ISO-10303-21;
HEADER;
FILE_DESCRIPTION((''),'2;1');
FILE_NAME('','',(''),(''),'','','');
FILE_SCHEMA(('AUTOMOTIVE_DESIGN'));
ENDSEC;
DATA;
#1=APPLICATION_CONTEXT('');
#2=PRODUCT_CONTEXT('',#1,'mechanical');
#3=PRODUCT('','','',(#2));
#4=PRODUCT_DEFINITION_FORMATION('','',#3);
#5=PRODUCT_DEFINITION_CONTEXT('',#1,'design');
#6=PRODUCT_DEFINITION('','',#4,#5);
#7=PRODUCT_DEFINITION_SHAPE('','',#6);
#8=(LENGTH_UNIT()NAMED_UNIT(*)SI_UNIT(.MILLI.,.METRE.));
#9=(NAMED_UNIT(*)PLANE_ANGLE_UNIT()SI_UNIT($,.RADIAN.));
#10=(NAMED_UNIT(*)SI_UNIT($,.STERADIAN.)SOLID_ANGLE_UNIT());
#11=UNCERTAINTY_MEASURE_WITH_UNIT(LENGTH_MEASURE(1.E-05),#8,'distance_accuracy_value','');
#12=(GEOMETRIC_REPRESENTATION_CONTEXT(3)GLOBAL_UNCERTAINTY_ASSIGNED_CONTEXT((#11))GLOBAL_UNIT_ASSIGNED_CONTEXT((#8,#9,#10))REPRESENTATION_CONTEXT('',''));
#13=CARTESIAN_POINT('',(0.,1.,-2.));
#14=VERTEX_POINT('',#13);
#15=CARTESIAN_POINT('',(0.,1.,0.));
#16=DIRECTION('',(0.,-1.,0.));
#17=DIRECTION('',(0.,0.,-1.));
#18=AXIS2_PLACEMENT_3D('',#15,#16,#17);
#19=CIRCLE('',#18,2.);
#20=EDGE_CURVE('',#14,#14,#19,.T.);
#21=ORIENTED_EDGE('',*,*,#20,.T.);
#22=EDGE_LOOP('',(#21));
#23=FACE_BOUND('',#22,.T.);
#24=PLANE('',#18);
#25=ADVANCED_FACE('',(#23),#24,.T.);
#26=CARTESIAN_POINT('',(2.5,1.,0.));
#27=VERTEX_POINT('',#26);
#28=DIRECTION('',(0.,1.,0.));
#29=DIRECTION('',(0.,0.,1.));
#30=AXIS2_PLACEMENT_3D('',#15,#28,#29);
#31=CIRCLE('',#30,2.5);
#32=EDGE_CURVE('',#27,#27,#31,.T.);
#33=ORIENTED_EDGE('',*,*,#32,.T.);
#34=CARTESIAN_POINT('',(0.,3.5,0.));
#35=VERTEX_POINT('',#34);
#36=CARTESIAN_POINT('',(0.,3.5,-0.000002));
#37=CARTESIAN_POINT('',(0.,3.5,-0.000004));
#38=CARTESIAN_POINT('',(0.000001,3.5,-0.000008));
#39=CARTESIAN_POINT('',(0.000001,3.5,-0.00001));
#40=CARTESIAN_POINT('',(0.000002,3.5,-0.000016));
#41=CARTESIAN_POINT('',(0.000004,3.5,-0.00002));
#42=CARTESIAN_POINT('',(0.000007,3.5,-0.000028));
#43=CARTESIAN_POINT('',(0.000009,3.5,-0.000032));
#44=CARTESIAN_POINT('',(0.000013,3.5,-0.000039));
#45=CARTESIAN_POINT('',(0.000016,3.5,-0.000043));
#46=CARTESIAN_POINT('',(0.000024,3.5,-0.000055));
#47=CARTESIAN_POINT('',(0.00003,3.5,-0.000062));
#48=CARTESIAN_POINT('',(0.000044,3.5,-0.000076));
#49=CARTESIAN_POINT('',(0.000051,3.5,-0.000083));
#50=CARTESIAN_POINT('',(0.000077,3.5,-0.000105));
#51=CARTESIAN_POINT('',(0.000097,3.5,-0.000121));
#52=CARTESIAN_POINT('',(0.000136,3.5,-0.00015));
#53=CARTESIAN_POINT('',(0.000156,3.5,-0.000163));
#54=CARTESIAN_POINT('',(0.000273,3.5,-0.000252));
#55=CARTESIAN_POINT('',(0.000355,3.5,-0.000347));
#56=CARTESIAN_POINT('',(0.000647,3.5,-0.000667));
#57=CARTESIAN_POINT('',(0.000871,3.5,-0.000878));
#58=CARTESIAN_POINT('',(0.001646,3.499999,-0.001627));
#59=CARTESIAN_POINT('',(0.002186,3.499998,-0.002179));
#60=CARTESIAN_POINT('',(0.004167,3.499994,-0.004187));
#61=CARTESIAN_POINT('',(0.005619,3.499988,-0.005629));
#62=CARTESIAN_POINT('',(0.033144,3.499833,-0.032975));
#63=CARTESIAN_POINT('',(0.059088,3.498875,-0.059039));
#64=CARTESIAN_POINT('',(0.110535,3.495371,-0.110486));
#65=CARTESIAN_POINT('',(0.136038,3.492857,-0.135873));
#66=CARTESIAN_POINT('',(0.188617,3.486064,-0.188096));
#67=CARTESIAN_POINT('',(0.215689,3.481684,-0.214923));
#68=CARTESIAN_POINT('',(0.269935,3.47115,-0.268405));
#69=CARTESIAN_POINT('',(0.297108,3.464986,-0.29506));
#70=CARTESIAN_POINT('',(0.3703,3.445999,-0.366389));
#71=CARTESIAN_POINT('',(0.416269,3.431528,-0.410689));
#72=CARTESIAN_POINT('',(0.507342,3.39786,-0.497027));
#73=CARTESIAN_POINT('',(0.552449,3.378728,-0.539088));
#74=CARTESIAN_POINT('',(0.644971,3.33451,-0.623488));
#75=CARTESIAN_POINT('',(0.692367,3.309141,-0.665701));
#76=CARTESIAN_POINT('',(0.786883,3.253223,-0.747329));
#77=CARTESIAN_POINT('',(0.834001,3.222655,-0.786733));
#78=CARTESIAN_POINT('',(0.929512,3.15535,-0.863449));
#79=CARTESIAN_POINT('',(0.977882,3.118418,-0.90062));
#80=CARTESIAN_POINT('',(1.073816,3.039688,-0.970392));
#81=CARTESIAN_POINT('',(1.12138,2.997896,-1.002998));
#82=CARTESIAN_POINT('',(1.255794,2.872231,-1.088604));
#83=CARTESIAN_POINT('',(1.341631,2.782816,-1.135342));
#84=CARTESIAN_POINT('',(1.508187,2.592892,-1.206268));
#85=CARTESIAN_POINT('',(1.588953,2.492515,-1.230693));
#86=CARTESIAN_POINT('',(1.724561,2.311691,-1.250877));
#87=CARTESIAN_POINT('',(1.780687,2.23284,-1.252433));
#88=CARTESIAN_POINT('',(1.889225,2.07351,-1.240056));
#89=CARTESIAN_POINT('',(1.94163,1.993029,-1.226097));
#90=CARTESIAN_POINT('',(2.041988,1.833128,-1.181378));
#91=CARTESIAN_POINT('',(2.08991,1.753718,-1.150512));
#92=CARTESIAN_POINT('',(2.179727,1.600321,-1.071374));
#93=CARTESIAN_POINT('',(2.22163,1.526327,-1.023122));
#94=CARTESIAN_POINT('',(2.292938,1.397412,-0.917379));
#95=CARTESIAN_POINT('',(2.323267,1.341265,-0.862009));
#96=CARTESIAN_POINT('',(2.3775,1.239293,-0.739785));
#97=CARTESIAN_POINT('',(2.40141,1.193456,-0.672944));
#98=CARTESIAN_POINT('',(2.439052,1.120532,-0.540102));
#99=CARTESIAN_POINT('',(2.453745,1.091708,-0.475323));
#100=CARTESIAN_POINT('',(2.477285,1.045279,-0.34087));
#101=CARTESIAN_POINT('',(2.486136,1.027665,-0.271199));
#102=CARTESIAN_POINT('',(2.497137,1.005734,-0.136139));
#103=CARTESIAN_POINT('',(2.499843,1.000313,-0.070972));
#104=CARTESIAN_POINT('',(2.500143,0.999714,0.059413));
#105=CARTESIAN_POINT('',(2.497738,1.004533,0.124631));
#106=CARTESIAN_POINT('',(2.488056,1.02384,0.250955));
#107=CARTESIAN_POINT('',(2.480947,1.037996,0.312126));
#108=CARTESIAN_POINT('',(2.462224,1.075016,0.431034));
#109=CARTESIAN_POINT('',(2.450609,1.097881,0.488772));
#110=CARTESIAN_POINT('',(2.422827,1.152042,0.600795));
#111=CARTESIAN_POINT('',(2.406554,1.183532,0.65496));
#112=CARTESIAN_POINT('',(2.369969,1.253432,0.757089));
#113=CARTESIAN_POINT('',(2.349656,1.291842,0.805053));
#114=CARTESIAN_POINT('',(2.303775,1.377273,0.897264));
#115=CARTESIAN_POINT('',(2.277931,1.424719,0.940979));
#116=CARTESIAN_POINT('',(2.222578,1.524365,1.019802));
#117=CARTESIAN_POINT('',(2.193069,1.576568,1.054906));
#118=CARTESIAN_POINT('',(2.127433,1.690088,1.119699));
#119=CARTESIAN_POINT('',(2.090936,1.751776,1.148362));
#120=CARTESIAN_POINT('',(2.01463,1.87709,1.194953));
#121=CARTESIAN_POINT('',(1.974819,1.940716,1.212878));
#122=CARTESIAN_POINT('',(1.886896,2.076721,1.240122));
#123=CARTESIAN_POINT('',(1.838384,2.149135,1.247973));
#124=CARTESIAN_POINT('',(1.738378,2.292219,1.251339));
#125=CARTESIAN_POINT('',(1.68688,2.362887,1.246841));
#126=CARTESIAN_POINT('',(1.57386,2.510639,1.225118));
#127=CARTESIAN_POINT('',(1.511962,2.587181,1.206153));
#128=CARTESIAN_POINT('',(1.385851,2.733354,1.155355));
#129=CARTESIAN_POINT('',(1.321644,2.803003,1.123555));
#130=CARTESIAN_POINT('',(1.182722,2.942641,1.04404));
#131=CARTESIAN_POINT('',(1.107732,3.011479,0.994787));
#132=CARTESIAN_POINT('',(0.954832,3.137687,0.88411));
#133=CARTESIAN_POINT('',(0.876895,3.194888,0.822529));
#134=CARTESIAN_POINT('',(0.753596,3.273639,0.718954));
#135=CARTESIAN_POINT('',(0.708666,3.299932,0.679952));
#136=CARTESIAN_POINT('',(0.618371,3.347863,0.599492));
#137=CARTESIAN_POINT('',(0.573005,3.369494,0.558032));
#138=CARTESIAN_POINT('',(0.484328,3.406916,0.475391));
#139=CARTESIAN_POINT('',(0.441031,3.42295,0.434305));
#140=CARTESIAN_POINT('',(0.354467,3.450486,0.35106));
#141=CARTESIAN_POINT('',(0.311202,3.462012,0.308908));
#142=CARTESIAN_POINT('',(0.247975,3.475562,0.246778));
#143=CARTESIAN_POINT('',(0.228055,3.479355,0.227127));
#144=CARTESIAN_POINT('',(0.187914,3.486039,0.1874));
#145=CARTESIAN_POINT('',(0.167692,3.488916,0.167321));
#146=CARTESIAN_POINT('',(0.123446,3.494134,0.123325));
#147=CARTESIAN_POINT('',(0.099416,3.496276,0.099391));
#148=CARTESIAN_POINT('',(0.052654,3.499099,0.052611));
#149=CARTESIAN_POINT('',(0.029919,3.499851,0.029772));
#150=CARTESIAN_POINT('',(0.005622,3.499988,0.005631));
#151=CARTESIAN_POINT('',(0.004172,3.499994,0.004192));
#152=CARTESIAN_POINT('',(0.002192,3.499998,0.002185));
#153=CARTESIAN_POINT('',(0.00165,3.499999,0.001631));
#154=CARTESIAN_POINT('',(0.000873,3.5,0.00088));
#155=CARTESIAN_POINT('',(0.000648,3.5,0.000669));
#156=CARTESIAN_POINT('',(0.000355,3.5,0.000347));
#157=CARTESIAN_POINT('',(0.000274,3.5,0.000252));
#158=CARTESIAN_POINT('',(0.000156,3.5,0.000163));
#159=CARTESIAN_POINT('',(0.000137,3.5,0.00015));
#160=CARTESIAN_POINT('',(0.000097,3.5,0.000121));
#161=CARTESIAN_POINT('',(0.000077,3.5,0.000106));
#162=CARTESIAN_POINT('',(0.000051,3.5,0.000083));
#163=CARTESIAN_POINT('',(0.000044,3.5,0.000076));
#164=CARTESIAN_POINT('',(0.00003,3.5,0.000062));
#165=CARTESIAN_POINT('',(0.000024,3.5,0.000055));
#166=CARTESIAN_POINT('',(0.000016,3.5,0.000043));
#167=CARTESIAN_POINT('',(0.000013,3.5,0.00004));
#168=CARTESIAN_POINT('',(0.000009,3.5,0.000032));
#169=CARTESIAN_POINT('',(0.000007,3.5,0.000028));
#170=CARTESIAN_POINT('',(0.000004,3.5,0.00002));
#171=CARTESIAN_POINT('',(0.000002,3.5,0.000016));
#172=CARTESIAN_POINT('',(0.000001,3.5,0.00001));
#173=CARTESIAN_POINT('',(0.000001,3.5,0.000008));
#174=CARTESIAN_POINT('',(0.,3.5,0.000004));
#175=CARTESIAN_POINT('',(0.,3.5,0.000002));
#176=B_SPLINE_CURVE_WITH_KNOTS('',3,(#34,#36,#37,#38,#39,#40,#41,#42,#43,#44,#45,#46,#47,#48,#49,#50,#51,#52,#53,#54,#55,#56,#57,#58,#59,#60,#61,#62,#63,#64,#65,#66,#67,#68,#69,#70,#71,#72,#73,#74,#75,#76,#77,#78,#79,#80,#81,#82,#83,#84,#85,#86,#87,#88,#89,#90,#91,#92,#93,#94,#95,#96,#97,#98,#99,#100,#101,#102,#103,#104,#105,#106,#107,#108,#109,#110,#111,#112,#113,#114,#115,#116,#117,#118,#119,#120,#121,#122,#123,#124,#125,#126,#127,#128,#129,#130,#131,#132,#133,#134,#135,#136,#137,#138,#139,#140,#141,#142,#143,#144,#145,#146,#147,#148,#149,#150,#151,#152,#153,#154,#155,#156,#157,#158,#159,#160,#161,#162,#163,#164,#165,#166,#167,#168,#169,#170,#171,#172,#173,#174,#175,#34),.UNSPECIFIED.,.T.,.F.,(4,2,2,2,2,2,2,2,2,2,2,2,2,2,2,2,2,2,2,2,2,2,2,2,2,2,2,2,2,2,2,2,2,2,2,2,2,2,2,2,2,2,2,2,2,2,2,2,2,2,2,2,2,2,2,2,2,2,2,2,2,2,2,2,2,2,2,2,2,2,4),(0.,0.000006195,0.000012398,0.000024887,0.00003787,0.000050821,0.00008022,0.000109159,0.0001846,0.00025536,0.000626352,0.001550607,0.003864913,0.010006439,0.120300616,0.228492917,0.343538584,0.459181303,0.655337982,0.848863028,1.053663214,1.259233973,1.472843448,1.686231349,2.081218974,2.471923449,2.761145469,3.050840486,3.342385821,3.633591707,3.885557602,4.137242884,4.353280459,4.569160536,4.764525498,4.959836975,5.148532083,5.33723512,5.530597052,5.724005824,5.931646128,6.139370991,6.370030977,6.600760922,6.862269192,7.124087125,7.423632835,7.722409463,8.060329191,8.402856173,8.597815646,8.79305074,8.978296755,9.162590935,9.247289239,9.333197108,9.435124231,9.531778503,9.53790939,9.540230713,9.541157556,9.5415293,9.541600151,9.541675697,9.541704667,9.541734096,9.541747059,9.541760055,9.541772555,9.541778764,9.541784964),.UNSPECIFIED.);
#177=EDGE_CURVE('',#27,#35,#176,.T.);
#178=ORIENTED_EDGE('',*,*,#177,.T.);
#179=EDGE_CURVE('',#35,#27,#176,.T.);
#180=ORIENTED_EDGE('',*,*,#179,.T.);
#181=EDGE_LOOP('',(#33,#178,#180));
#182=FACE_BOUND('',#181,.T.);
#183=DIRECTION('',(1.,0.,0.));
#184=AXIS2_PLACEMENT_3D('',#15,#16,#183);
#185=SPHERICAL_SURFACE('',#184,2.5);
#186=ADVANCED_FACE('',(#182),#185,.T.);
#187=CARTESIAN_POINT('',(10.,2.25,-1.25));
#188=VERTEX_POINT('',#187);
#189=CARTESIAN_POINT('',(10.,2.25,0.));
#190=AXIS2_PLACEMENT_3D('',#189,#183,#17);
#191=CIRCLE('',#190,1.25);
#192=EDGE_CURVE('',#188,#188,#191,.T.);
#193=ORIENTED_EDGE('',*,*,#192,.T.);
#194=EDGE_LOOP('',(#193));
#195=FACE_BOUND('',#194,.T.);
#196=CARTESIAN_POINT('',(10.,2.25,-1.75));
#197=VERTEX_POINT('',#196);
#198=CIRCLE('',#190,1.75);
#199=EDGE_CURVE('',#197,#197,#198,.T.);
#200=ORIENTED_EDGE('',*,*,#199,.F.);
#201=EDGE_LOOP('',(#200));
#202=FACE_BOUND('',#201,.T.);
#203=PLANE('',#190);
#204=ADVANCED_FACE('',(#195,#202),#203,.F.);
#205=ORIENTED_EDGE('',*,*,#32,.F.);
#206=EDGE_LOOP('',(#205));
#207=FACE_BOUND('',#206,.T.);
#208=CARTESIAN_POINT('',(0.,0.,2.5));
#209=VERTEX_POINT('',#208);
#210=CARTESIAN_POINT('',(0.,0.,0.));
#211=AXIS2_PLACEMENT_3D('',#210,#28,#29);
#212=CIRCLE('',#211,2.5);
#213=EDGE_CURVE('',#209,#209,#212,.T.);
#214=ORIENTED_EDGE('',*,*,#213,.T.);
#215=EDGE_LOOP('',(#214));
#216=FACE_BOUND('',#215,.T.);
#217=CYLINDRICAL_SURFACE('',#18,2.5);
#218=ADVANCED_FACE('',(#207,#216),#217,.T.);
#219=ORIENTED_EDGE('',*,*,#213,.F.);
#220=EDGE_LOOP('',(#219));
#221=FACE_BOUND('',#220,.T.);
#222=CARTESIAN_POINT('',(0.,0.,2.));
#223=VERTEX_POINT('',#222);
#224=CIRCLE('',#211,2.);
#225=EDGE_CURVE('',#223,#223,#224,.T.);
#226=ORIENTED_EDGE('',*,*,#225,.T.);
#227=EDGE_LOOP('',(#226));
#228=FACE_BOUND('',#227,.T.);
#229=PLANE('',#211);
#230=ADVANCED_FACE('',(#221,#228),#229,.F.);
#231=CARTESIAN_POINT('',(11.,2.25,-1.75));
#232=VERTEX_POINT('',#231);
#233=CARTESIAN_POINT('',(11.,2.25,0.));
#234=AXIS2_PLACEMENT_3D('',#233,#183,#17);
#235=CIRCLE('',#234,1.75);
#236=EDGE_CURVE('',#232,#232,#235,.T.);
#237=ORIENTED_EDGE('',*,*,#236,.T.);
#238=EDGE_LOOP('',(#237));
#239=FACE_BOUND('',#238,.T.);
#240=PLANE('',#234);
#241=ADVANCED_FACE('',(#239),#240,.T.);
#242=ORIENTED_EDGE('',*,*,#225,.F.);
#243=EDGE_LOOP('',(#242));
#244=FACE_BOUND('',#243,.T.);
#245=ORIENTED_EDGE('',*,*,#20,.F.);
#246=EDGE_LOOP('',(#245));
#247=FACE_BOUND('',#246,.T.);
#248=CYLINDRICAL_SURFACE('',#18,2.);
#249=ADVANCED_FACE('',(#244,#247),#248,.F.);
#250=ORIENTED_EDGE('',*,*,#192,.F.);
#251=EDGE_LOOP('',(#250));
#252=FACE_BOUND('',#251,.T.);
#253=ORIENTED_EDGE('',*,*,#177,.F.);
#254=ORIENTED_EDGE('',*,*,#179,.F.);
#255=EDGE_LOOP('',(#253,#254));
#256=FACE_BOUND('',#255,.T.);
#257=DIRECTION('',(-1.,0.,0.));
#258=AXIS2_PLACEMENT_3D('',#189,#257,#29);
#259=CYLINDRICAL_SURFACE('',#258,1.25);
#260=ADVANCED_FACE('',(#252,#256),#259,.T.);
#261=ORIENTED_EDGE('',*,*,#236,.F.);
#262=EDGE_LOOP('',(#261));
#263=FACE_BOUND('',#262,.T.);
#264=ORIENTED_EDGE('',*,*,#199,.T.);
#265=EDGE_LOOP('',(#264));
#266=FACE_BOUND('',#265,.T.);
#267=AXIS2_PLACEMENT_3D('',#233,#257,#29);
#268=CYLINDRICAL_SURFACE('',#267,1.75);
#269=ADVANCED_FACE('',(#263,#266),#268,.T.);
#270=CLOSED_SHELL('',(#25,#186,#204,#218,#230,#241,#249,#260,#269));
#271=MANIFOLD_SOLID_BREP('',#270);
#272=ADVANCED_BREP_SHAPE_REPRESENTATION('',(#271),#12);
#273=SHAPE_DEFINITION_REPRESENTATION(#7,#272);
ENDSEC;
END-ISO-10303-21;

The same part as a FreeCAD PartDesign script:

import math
import FreeCAD as App
import Part
import Sketcher

V = App.Vector

doc = App.newDocument("Part")
body = doc.addObject("PartDesign::Body", "Body")

# Sketch on XZ plane
sketch1 = body.newObject("Sketcher::SketchObject", "Sketch")
sketch1.AttachmentSupport = (doc.getObject("XZ_Plane"), [""])
sketch1.MapMode = "FlatFace"
sketch1.addGeometry(Part.Circle(V(0, 0, 0), V(0, 0, 1), 2.5), False)
sketch1.addGeometry(Part.Circle(V(0, 0, 0), V(0, 0, 1), 2), False)
sketch1.addConstraint(Sketcher.Constraint("Coincident", 0, 3, -1, 1))
sketch1.addConstraint(Sketcher.Constraint("Coincident", 1, 3, -1, 1))
sketch1.addConstraint(Sketcher.Constraint("Diameter", 0, 5.0))
sketch1.addConstraint(Sketcher.Constraint("Diameter", 1, 4.0))
pad1 = body.newObject("PartDesign::Pad", "Pad")
pad1.Profile = sketch1
pad1.Length = 1
pad1.Reversed = True

# Sketch on XY plane
sketch2 = body.newObject("Sketcher::SketchObject", "Sketch001")
sketch2.AttachmentSupport = (doc.getObject("XY_Plane"), [""])
sketch2.MapMode = "FlatFace"
sketch2.addGeometry(Part.LineSegment(V(0, 1, 0), V(2.5, 1, 0)), False)
sketch2.addGeometry(Part.ArcOfCircle(Part.Circle(V(0, 1, 0), V(0, 0, 1), 2.5), math.radians(0), math.radians(90)), False)
sketch2.addGeometry(Part.LineSegment(V(0, 3.5, 0), V(0, 1, 0)), False)
sketch2.addConstraint(Sketcher.Constraint("Coincident", 0, 2, 1, 1))
sketch2.addConstraint(Sketcher.Constraint("Coincident", 1, 2, 2, 1))
sketch2.addConstraint(Sketcher.Constraint("Coincident", 2, 2, 0, 1))
sketch2.addConstraint(Sketcher.Constraint("Horizontal", 0))
sketch2.addConstraint(Sketcher.Constraint("Vertical", 2))
sketch2.addConstraint(Sketcher.Constraint("Coincident", 2, 2, 1, 3))
sketch2.addConstraint(Sketcher.Constraint("PointOnObject", 1, 3, -2))
sketch2.addConstraint(Sketcher.Constraint("Radius", 1, 2.5))
sketch2.addConstraint(Sketcher.Constraint("DistanceY", -1, 1, 1, 3, 1.0))
revolution = body.newObject("PartDesign::Revolution", "Revolution")
revolution.Profile = sketch2
revolution.ReferenceAxis = (sketch2, ["V_Axis"])
revolution.Angle = 360

# Sketch on YZ plane
sketch3 = body.newObject("Sketcher::SketchObject", "Sketch002")
sketch3.AttachmentSupport = (doc.getObject("YZ_Plane"), [""])
sketch3.MapMode = "FlatFace"
sketch3.addGeometry(Part.ArcOfCircle(Part.Circle(V(2.2, 0, 0), V(0, 0, 1), 1.2), math.radians(0), math.radians(180)), False)
sketch3.addGeometry(Part.ArcOfCircle(Part.Circle(V(2.3, 0, 0), V(0, 0, 1), 1.3), math.radians(-180), math.radians(-90)), False)
sketch3.addGeometry(Part.ArcOfCircle(Part.Circle(V(2.2, 0, 0), V(0, 0, 1), 1.3), math.radians(-90), math.radians(0)), False)
sketch3.addConstraint(Sketcher.Constraint("Tangent", 0, 2, 1, 1))
sketch3.addConstraint(Sketcher.Constraint("Tangent", 1, 2, 2, 1))
sketch3.addConstraint(Sketcher.Constraint("Tangent", 2, 2, 0, 1))
sketch3.addConstraint(Sketcher.Constraint("PointOnObject", 0, 3, -1))
sketch3.addConstraint(Sketcher.Constraint("PointOnObject", 0, 2, -1))
sketch3.addConstraint(Sketcher.Constraint("PointOnObject", 2, 2, -1))
sketch3.addConstraint(Sketcher.Constraint("Vertical", 2, 3, 1, 2))
sketch3.addConstraint(Sketcher.Constraint("Radius", 0, 1.25))
sketch3.addConstraint(Sketcher.Constraint("DistanceX", -1, 1, 0, 2, 1.0))
pad2 = body.newObject("PartDesign::Pad", "Pad001")
pad2.Profile = sketch3
pad2.Length = 10

# Sketch on YZ plane
sketch4 = body.newObject("Sketcher::SketchObject", "Sketch003")
sketch4.AttachmentSupport = (doc.getObject("YZ_Plane"), [""])
sketch4.MapMode = "FlatFace"
sketch4.AttachmentOffset = App.Placement(V(0, 0, 10), App.Rotation())
sketch4.addGeometry(Part.Circle(V(2.2, 0, 0), V(0, 0, 1), 1.8), False)
sketch4.addConstraint(Sketcher.Constraint("PointOnObject", 0, 3, -1))
sketch4.addConstraint(Sketcher.Constraint("Diameter", 0, 3.5))
sketch4.addConstraint(Sketcher.Constraint("DistanceX", -1, 1, 0, 3, 2.25))
pad3 = body.newObject("PartDesign::Pad", "Pad002")
pad3.Profile = sketch4
pad3.Length = 1

doc.recompute()
